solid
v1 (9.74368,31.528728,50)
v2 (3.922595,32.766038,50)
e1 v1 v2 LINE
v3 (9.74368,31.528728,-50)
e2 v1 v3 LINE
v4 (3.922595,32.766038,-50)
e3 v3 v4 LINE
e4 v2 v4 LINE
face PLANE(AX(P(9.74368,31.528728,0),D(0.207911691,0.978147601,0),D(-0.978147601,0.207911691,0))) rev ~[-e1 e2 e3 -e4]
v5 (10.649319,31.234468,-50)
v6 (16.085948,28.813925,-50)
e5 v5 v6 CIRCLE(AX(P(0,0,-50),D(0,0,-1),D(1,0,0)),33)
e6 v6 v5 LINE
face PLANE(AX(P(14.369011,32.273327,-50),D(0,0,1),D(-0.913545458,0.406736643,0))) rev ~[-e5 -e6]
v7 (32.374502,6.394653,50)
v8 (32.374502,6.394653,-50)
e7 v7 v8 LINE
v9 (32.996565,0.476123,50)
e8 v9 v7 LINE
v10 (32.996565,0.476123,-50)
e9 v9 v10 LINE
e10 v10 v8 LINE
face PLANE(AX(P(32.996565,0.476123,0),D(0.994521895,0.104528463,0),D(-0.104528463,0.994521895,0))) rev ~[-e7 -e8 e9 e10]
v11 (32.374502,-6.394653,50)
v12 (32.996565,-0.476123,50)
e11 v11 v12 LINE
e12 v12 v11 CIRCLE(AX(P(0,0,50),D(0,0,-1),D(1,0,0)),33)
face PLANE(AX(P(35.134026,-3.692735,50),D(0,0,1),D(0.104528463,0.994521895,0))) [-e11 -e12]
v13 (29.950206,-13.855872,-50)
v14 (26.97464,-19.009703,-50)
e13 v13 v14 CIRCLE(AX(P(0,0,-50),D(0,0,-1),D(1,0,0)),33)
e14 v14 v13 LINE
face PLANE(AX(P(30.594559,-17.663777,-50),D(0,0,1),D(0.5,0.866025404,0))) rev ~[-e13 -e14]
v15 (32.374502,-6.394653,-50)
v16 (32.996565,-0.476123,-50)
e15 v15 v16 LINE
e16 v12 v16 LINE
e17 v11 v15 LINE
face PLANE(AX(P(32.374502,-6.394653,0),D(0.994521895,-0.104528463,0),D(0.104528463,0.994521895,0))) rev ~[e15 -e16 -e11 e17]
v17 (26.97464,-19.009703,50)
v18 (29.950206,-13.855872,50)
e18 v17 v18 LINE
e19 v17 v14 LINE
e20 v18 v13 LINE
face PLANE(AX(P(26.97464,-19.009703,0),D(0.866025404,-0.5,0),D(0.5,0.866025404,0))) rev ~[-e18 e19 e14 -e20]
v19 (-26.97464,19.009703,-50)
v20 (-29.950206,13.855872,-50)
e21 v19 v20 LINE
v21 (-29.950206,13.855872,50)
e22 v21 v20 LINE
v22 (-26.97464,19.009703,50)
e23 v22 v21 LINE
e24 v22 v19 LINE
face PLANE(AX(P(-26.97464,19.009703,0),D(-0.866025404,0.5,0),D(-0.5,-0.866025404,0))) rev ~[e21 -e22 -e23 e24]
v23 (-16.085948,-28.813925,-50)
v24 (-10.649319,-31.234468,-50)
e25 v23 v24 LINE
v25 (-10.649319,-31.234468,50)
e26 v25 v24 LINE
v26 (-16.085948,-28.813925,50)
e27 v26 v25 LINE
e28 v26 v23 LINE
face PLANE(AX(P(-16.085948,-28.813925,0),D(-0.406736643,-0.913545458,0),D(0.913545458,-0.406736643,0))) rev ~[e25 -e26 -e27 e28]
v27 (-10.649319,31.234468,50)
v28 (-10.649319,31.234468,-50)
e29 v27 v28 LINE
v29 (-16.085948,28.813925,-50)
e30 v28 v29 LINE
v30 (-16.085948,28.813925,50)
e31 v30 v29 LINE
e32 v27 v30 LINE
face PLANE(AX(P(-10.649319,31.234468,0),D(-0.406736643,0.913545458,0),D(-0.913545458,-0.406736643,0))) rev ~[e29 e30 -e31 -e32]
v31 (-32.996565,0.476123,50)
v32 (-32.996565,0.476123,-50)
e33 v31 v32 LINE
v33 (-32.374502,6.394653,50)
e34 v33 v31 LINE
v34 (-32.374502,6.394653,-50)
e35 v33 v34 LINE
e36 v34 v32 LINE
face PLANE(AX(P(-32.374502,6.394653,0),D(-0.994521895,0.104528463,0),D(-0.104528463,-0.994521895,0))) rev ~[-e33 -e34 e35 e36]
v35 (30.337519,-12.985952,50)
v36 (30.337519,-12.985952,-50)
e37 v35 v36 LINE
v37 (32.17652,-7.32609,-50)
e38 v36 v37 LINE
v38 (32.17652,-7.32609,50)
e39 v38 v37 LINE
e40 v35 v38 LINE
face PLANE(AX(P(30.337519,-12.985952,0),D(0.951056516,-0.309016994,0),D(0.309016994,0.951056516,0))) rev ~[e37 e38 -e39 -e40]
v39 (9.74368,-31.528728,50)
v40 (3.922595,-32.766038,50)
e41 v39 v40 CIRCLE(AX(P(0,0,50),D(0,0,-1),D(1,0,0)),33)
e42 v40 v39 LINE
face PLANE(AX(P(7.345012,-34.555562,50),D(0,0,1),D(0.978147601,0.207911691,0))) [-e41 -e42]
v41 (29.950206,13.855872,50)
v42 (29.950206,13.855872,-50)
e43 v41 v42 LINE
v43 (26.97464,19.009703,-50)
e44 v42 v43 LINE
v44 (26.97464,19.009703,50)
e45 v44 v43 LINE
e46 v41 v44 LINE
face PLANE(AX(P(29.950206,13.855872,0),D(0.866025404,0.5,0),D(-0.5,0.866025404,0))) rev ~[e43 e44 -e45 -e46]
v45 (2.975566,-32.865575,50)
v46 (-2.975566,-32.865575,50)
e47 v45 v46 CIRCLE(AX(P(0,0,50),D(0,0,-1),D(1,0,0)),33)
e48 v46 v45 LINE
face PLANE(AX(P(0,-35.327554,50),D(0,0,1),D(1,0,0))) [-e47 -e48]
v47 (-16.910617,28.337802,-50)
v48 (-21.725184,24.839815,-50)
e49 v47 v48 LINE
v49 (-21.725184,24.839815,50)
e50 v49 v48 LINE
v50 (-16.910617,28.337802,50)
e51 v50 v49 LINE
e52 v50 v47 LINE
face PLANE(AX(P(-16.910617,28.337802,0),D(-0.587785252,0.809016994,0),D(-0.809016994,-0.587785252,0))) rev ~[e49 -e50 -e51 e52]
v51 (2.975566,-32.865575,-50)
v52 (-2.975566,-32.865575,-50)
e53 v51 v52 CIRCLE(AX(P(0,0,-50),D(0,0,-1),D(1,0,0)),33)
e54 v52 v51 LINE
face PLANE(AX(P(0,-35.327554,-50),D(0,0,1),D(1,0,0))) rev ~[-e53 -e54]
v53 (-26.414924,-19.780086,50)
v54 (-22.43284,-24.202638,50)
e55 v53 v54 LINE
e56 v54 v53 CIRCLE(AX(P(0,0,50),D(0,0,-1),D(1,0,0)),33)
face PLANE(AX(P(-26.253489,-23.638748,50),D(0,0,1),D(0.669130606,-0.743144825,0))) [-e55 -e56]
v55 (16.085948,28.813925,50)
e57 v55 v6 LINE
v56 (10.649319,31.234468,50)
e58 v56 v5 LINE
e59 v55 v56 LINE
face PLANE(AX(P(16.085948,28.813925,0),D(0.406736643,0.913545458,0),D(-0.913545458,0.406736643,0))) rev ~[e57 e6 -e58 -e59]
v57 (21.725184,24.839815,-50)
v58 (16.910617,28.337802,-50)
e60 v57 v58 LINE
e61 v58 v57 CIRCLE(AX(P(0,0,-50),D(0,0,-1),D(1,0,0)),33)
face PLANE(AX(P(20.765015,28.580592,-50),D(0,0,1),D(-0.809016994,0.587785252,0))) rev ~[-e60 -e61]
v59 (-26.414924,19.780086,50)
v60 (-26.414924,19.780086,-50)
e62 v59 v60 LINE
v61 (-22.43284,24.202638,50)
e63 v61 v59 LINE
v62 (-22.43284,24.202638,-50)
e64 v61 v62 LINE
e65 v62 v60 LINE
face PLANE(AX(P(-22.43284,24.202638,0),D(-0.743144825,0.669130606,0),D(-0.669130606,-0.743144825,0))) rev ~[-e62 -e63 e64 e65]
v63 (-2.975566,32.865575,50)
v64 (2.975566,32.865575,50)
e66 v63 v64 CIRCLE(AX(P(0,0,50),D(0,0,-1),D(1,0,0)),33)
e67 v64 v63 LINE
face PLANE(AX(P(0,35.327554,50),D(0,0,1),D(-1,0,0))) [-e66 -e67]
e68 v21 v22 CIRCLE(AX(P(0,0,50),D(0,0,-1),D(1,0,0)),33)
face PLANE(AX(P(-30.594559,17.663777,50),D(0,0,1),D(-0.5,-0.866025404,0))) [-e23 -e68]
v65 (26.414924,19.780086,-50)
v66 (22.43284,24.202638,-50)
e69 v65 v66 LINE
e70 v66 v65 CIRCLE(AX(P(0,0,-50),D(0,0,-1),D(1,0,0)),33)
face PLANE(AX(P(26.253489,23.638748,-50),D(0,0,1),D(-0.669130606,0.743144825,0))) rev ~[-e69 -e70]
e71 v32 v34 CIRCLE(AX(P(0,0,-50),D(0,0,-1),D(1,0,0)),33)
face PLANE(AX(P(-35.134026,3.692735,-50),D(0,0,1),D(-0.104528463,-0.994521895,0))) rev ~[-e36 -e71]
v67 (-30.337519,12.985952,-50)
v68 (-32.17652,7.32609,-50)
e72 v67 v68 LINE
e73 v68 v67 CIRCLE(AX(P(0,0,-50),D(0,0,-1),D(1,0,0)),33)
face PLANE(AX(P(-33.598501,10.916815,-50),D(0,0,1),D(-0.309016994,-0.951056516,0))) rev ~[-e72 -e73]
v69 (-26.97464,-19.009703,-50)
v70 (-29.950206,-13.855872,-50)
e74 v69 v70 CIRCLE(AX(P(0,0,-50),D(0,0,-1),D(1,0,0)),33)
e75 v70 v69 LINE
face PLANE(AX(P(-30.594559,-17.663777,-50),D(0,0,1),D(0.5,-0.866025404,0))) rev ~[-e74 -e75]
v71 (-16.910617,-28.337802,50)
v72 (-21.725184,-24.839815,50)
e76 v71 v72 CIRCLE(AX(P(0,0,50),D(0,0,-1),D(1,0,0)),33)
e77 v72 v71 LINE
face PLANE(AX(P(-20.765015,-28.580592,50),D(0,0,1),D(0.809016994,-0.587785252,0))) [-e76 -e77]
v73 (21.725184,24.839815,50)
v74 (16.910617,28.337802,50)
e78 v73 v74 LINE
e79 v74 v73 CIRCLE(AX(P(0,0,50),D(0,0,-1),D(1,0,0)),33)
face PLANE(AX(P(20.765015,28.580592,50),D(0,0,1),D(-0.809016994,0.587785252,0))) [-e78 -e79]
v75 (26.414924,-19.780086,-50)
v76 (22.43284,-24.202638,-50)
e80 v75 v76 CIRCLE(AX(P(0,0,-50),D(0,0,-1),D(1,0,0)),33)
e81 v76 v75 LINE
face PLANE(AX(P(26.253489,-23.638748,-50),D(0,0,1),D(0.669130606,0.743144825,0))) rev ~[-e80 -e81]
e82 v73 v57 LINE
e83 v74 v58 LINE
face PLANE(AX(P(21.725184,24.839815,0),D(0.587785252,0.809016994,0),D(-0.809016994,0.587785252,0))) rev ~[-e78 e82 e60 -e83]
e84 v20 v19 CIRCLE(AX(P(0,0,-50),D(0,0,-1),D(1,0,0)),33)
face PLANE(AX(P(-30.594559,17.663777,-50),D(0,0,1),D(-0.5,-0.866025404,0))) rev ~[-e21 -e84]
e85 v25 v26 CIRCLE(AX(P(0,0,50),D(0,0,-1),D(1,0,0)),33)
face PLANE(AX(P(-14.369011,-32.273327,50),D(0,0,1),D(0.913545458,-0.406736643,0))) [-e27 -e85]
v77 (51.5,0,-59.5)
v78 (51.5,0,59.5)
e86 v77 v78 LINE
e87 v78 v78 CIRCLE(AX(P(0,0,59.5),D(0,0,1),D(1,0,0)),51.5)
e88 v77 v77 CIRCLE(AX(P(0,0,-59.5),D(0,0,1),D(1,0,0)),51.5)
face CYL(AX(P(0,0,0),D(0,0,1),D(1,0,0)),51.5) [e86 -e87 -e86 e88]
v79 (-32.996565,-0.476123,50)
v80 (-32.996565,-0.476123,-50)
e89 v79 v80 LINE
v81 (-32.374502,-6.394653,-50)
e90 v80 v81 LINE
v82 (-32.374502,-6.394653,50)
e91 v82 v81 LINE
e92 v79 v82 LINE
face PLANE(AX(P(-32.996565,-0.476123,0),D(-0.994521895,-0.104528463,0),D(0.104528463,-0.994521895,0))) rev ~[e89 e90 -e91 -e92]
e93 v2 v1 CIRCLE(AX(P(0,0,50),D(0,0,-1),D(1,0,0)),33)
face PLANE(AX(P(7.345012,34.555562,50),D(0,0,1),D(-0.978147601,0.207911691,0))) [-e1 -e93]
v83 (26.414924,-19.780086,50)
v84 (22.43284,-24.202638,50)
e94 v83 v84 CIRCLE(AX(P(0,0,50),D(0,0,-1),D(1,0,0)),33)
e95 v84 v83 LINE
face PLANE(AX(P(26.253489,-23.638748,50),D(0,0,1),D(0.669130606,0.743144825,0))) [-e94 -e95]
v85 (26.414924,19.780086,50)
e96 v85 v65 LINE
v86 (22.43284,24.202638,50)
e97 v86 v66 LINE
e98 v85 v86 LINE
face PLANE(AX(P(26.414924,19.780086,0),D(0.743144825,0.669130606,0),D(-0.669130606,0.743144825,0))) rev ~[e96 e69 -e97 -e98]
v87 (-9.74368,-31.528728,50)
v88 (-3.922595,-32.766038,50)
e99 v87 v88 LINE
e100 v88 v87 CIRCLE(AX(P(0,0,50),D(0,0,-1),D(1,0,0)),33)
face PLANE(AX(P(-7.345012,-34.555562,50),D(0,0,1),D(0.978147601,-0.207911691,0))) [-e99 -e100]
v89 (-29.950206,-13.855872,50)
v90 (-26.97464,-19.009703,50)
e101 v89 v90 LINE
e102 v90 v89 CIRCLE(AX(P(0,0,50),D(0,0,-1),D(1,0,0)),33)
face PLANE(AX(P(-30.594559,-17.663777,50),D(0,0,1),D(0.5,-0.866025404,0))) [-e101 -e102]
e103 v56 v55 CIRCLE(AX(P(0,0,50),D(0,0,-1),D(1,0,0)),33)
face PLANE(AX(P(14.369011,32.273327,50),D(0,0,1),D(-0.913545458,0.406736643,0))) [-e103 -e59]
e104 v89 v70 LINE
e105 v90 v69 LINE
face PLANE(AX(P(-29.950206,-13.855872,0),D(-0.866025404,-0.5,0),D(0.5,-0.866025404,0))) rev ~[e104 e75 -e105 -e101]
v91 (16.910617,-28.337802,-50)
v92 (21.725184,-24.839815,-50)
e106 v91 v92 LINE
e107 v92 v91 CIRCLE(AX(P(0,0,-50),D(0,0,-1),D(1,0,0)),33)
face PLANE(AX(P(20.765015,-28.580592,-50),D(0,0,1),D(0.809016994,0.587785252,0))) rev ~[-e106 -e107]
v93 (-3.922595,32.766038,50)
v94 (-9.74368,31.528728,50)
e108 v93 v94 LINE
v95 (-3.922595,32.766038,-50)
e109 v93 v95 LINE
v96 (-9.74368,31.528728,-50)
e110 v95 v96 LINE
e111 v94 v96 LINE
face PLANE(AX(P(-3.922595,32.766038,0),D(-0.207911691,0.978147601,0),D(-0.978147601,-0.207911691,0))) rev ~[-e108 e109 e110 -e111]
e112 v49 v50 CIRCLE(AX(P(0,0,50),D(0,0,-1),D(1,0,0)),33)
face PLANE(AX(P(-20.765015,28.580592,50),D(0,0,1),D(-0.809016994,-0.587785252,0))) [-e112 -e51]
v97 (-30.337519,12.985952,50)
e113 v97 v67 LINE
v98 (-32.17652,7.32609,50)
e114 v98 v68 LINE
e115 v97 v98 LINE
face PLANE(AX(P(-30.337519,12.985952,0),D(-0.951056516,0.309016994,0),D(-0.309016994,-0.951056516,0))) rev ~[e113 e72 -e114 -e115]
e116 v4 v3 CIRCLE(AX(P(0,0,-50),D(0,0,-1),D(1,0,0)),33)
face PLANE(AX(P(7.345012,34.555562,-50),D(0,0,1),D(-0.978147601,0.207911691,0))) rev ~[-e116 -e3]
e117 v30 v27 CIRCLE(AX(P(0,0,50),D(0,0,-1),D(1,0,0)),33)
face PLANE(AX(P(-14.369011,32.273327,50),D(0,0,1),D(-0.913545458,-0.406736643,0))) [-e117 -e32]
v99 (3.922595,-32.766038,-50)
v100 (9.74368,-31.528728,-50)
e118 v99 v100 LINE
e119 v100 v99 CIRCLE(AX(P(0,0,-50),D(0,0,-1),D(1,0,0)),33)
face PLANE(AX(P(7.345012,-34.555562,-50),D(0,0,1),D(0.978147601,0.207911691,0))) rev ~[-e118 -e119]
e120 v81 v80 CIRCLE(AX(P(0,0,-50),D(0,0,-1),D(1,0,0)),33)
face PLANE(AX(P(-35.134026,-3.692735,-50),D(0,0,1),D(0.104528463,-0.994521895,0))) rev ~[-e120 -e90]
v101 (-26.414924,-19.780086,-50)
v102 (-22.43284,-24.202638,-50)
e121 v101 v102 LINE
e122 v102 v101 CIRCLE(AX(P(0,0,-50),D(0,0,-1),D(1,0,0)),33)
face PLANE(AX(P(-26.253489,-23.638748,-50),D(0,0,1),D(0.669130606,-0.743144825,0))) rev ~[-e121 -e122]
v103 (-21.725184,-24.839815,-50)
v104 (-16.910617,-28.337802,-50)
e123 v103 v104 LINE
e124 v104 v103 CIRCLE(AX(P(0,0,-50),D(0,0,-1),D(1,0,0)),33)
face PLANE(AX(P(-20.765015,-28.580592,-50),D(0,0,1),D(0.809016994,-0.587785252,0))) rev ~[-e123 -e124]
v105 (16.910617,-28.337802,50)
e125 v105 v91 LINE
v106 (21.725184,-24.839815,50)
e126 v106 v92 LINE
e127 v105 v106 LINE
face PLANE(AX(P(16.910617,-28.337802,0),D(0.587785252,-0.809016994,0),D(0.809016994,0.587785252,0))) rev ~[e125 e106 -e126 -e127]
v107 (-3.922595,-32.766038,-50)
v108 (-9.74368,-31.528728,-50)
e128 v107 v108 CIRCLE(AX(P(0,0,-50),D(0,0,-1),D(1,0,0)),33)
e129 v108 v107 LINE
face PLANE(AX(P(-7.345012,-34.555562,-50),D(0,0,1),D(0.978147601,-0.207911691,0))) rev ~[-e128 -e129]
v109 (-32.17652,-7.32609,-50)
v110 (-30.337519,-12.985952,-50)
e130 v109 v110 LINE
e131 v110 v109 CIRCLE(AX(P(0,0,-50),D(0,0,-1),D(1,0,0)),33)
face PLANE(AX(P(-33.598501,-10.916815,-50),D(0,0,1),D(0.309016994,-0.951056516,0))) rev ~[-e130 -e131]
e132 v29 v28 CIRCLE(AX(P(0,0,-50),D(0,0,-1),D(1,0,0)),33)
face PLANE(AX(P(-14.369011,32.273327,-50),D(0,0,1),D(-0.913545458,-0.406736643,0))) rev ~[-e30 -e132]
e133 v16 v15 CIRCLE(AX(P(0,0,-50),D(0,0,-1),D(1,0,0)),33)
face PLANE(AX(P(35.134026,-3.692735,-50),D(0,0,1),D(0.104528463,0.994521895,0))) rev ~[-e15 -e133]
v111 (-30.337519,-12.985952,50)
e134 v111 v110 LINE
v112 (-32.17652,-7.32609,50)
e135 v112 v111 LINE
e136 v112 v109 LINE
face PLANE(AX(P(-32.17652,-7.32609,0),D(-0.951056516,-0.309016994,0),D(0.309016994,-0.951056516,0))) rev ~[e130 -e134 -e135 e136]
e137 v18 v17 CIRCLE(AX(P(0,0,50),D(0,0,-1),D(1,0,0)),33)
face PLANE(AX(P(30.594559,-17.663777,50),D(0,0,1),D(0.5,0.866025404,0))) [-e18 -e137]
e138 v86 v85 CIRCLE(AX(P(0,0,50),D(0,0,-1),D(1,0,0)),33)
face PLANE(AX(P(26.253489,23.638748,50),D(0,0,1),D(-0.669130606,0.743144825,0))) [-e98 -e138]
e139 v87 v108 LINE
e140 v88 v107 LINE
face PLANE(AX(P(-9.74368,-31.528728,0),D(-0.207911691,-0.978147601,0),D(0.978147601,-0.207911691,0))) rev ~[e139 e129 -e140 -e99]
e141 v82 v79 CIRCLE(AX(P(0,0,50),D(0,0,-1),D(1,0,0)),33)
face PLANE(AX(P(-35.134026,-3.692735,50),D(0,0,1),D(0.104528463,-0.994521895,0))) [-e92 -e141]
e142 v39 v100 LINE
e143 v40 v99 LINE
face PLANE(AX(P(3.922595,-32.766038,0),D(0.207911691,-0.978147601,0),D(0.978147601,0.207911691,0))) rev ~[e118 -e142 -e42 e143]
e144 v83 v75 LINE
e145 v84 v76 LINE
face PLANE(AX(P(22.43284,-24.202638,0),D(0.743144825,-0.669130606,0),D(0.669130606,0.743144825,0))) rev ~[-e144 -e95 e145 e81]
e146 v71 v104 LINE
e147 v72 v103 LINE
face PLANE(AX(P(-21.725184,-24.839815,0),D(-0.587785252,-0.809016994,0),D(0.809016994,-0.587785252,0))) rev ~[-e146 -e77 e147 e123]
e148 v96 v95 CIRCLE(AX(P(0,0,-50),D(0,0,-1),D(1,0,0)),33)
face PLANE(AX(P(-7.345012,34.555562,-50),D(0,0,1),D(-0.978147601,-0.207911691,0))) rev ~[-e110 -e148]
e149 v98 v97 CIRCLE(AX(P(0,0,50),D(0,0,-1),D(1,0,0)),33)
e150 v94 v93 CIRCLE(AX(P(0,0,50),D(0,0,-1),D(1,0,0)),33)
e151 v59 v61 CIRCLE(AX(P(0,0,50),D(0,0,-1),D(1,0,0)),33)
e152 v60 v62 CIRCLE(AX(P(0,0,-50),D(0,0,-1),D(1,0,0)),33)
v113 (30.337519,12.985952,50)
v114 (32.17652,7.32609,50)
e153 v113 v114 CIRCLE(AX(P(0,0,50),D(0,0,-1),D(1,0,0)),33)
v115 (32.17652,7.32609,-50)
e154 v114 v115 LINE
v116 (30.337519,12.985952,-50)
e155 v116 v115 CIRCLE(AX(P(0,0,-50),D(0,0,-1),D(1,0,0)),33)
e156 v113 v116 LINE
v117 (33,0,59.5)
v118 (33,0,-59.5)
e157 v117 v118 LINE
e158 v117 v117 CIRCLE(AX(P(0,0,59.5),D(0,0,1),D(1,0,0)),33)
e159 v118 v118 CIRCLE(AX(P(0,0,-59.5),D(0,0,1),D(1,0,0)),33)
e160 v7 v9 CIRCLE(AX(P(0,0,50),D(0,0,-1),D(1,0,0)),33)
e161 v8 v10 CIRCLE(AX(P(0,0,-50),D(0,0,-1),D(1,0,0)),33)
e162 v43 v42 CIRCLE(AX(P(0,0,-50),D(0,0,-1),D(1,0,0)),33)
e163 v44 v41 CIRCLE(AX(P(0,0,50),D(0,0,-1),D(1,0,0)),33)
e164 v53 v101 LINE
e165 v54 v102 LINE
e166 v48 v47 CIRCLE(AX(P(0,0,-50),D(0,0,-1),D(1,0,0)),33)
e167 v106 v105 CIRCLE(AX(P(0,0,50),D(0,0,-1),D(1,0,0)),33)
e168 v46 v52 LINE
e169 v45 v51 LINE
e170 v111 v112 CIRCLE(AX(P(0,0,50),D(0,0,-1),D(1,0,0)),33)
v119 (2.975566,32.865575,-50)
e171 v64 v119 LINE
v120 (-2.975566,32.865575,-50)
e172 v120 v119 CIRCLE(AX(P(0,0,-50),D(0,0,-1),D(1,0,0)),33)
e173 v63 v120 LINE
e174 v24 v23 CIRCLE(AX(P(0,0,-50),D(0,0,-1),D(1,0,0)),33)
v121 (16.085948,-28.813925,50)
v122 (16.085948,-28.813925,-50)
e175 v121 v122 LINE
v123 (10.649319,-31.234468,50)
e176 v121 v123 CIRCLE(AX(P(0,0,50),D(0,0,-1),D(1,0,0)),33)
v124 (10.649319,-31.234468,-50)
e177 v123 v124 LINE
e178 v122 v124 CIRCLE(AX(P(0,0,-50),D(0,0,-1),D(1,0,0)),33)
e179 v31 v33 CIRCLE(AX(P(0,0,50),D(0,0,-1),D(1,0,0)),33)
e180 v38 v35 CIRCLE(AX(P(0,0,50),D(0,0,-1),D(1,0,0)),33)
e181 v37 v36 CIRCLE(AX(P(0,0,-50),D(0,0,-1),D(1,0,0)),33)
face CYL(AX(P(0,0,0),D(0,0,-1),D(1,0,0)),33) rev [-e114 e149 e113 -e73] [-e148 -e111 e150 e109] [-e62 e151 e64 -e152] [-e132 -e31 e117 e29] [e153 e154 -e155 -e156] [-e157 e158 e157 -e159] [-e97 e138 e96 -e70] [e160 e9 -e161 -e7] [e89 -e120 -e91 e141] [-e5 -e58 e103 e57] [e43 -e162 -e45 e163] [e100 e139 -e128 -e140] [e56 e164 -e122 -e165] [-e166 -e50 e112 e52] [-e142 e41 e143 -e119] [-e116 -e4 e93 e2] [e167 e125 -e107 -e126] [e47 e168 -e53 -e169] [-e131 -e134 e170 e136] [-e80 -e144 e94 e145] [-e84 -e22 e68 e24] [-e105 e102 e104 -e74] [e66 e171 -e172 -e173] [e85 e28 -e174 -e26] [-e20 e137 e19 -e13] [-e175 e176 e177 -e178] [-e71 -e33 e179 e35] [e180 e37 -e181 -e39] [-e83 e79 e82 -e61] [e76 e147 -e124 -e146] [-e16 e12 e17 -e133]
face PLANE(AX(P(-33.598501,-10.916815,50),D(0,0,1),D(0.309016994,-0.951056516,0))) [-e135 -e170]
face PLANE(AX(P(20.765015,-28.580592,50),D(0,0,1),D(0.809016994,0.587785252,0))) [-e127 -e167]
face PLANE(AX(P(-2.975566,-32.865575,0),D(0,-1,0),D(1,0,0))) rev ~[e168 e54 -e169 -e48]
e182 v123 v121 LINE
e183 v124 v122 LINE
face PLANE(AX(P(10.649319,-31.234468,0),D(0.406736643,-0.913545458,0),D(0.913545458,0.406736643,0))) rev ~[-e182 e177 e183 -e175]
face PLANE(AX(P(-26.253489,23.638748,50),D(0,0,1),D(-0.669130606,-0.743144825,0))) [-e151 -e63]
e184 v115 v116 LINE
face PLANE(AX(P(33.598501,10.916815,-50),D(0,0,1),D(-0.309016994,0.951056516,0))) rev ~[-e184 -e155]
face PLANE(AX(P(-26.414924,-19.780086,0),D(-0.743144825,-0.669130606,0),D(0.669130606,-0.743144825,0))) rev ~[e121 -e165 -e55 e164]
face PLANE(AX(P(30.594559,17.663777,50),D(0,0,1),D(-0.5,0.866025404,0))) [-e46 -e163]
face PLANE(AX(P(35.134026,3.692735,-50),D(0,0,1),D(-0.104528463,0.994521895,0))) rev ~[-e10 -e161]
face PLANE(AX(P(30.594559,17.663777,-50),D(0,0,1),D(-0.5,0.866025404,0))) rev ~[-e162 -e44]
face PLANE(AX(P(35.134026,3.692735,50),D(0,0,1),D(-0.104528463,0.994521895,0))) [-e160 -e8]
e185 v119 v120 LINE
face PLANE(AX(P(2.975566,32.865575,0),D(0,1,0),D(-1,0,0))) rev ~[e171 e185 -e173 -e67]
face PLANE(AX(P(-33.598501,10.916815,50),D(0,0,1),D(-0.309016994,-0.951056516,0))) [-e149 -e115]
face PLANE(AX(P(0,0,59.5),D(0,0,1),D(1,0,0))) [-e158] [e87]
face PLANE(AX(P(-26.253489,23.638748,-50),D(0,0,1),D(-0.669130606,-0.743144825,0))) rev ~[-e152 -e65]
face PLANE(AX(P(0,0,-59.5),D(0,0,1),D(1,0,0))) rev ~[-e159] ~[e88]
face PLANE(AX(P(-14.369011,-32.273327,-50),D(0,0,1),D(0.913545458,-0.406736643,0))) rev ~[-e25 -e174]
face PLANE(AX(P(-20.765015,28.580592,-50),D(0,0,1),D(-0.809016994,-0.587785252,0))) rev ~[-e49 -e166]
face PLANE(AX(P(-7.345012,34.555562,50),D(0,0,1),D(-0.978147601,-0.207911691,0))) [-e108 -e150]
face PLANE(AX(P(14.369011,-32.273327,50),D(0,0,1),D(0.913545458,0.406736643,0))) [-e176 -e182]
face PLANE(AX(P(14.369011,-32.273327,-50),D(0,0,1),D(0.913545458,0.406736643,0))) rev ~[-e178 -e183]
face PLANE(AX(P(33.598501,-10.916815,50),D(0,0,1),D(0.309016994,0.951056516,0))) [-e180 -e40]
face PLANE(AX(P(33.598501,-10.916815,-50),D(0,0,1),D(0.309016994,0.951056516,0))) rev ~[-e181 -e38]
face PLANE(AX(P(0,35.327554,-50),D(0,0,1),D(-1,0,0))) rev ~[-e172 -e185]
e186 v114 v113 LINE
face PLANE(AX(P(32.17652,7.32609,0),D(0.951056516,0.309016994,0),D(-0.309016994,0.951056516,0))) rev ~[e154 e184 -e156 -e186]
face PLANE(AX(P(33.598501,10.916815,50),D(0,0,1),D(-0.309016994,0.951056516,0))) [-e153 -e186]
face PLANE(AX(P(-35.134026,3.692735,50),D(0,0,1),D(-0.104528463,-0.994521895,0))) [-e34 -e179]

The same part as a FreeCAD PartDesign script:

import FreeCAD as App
import Part
import Sketcher

V = App.Vector


def add_polygon(sketch, points):
    """Adds a closed chain of lines whose ends are joined by coincident constraints."""
    first, n = sketch.GeometryCount, len(points)
    for a, b in zip(points, points[1:] + points[:1]):
        sketch.addGeometry(Part.LineSegment(App.Vector(*a, 0), App.Vector(*b, 0)), False)
    for i in range(n):
        sketch.addConstraint(Sketcher.Constraint("Coincident", first + i, 2, first + (i + 1) % n, 1))

doc = App.newDocument("Part")
body = doc.addObject("PartDesign::Body", "Body")

sketch1 = body.newObject("Sketcher::SketchObject", "Sketch")
sketch1.AttachmentSupport = (doc.getObject("XY_Plane"), [""])
sketch1.MapMode = "FlatFace"
sketch1.addGeometry([
    Part.Circle(V(0, 0, 0), V(0, 0, 1), 52),
    Part.Circle(V(0, 0, 0), V(0, 0, 1), 33),
], False)
sketch1.addConstraint([
    Sketcher.Constraint("Coincident", 0, 3, -1, 1),
    Sketcher.Constraint("Coincident", 1, 3, -1, 1),
    Sketcher.Constraint("Diameter", 0, 103.0),
    Sketcher.Constraint("Diameter", 1, 66.0),
])
pad1 = body.newObject("PartDesign::Pad", "Pad")
pad1.Profile = sketch1
pad1.Length = 119
pad1.Midplane = True

sketch2 = body.newObject("Sketcher::SketchObject", "Sketch001")
sketch2.AttachmentSupport = (doc.getObject("XY_Plane"), [""])
sketch2.MapMode = "FlatFace"
add_polygon(sketch2, [(-3, -32.9), (-3, -37.8), (3, -37.8), (3, -32.9)])
sketch2.addConstraint([
    Sketcher.Constraint("Vertical", 0),
    Sketcher.Constraint("Horizontal", 1),
    Sketcher.Constraint("Vertical", 2),
    Sketcher.Constraint("Horizontal", 3),
    Sketcher.Constraint("DistanceX", 1, 1, 1, 2, 5.951132),
    Sketcher.Constraint("DistanceY", 0, 2, 0, 1, 4.923959),
    Sketcher.Constraint("DistanceX", 0, 2, -1, 1, 2.975566),
    Sketcher.Constraint("DistanceY", 0, 2, -1, 1, 37.789533),
])
pad2 = body.newObject("PartDesign::Pad", "Pad001")
pad2.Profile = sketch2
pad2.Length = 100
pad2.Midplane = True
doc.recompute()

polarpattern = body.newObject("PartDesign::PolarPattern", "PolarPattern")
polarpattern.Originals = [pad2]
polarpattern.Axis = (doc.getObject("Z_Axis"), [""])
polarpattern.Angle = 360
polarpattern.Occurrences = 30
body.Tip = polarpattern

doc.recompute()
